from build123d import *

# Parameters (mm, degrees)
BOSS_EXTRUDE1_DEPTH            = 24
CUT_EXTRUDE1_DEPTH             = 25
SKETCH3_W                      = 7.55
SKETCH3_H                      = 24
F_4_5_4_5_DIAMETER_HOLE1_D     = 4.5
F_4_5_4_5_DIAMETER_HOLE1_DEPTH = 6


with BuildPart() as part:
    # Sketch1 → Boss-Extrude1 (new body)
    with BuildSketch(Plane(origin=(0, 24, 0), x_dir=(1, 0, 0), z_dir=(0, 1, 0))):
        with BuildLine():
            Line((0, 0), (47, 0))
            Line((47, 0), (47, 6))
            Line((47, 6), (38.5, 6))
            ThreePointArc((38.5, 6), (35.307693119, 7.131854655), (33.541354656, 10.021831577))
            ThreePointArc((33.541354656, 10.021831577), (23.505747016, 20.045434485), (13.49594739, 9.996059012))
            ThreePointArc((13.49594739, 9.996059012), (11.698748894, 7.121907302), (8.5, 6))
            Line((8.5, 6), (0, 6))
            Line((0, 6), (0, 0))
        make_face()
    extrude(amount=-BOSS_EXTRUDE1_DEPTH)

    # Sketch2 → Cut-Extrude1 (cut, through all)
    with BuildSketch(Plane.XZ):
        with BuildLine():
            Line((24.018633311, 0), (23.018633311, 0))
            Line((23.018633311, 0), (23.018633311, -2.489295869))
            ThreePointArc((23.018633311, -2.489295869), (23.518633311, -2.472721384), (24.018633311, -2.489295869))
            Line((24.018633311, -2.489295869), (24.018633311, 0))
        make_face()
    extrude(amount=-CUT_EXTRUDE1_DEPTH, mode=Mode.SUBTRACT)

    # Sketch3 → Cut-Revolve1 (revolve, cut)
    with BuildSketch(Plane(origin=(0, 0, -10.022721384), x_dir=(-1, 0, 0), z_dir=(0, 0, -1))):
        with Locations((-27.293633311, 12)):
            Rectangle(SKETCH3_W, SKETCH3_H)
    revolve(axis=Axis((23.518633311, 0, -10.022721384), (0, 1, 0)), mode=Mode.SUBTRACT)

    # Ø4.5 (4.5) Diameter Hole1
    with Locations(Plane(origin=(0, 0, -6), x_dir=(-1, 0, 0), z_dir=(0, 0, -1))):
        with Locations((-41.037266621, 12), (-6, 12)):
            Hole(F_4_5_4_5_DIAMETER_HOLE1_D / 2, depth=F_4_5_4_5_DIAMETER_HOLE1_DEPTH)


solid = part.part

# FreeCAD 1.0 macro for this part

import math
import FreeCAD as App
import Part
import Sketcher

V = App.Vector


def add_polygon(sketch, points):
    """Adds a closed chain of lines whose ends are joined by coincident constraints."""
    first, n = sketch.GeometryCount, len(points)
    for a, b in zip(points, points[1:] + points[:1]):
        sketch.addGeometry(Part.LineSegment(App.Vector(*a, 0), App.Vector(*b, 0)), False)
    for i in range(n):
        sketch.addConstraint(Sketcher.Constraint("Coincident", first + i, 2, first + (i + 1) % n, 1))

doc = App.newDocument("Part")
params = doc.addObject("Spreadsheet::Sheet", "Params")
for row, (alias, value) in enumerate([
    ("sketch1_width", "47 mm"),
    ("sketch1_height", "6 mm"),
    ("sketch1_width2", "8.5 mm"),
    ("pad1_length", "24 mm"),
    ("sketch2_width", "1 mm"),
    ("sketch2_radius", "7.55 mm"),
    ("sketch3_height", "24 mm"),
    ("sketch3_width", "7.55 mm"),
    ("groove_angle", "360 deg"),
    ("sketch4_diameter", "4.5 mm"),
    ("hole_diameter", "4.5 mm"),
    ("hole_depth", "6 mm"),
], start=1):
    params.set(f"A{row}", alias)
    params.set(f"B{row}", "=" + value)
    params.setAlias(f"B{row}", alias)

body = doc.addObject("PartDesign::Body", "Body")

# Sketch on XZ plane
sketch1 = body.newObject("Sketcher::SketchObject", "Sketch")
sketch1.AttachmentSupport = (doc.getObject("XZ_Plane"), [""])
sketch1.MapMode = "FlatFace"
sketch1.AttachmentOffset = App.Placement(V(0, 0, -24), App.Rotation())
sketch1.addGeometry([
    Part.LineSegment(V(0, 0, 0), V(47, 0, 0)),  # 0
    Part.LineSegment(V(47, 0, 0), V(47, -6, 0)),  # 1
    Part.LineSegment(V(47, -6, 0), V(38, -6, 0)),  # 2
    Part.ArcOfCircle(Part.Circle(V(38, -11, 0), V(0, 0, 1), 5), math.radians(90), math.radians(168)),  # 3
    Part.ArcOfCircle(Part.Circle(V(24, -10, 0), V(0, 0, 1), 10), math.radians(180), math.radians(360)),  # 4
    Part.ArcOfCircle(Part.Circle(V(9, -11, 0), V(0, 0, 1), 5), math.radians(13), math.radians(90)),  # 5
    Part.LineSegment(V(8, -6, 0), V(0, -6, 0)),  # 6
    Part.LineSegment(V(0, -6, 0), V(0, 0, 0)),  # 7
], False)
sketch1.addConstraint([
    Sketcher.Constraint("Coincident", 0, 2, 1, 1),
    Sketcher.Constraint("Coincident", 1, 2, 2, 1),
    Sketcher.Constraint("Tangent", 2, 2, 3, 1),
    Sketcher.Constraint("Coincident", 3, 2, 4, 2),
    Sketcher.Constraint("Coincident", 4, 1, 5, 1),
    Sketcher.Constraint("Tangent", 5, 2, 6, 1),
    Sketcher.Constraint("Coincident", 6, 2, 7, 1),
    Sketcher.Constraint("Coincident", 7, 2, 0, 1),
    Sketcher.Constraint("Horizontal", 0),
    Sketcher.Constraint("Vertical", 1),
    Sketcher.Constraint("Horizontal", 2),
    Sketcher.Constraint("Horizontal", 6),
    Sketcher.Constraint("Vertical", 7),
    Sketcher.Constraint("Coincident", 7, 2, -1, 1),
    Sketcher.Constraint("Horizontal", 2, 2, 5, 2),
    Sketcher.Constraint("Equal", 2, 6),
    Sketcher.Constraint("DistanceX", 0, 1, 0, 2, 47.0),
    Sketcher.Constraint("DistanceY", 1, 2, 1, 1, 6.0),
    Sketcher.Constraint("DistanceX", 2, 2, 2, 1, 8.5),
    Sketcher.Constraint("Radius", 4, 10.022721),
    Sketcher.Constraint("Radius", 3, 5.067752),
    Sketcher.Constraint("Radius", 5, 5.121043),
    Sketcher.Constraint("DistanceY", 4, 3, -1, 1, 10.022721),
    Sketcher.Constraint("DistanceY", 3, 2, -1, 1, 10.021832),
])
sketch1.setExpression("Constraints[16]", "Params.sketch1_width")
sketch1.setExpression("Constraints[17]", "Params.sketch1_height")
sketch1.setExpression("Constraints[18]", "Params.sketch1_width2")
pad1 = body.newObject("PartDesign::Pad", "Pad")
pad1.Profile = sketch1
pad1.setExpression("Length", "Params.pad1_length")

# Sketch on XZ plane
sketch2 = body.newObject("Sketcher::SketchObject", "Sketch001")
sketch2.AttachmentSupport = (doc.getObject("XZ_Plane"), [""])
sketch2.MapMode = "FlatFace"
sketch2.addGeometry([
    Part.LineSegment(V(24, 0, 0), V(23, 0, 0)),
    Part.LineSegment(V(23, 0, 0), V(23, -2.5, 0)),
    Part.ArcOfCircle(Part.Circle(V(23.5, -10, 0), V(0, 0, 1), 7.5), math.radians(86.2), math.radians(93.8)),
    Part.LineSegment(V(24, -2.5, 0), V(24, 0, 0)),
], False)
sketch2.addConstraint([
    Sketcher.Constraint("Coincident", 0, 2, 1, 1),
    Sketcher.Constraint("Coincident", 1, 2, 2, 2),
    Sketcher.Constraint("Coincident", 2, 1, 3, 1),
    Sketcher.Constraint("Coincident", 3, 2, 0, 1),
    Sketcher.Constraint("Horizontal", 0),
    Sketcher.Constraint("Vertical", 1),
    Sketcher.Constraint("Vertical", 3),
    Sketcher.Constraint("PointOnObject", 0, 2, -1),
    Sketcher.Constraint("Horizontal", 1, 2, 2, 1),
    Sketcher.Constraint("DistanceX", 0, 2, 0, 1, 1.0),
    Sketcher.Constraint("Radius", 2, 7.55),
    Sketcher.Constraint("DistanceY", 1, 2, 1, 1, 2.489296),
    Sketcher.Constraint("DistanceX", -1, 1, 2, 3, 23.518633),
])
sketch2.setExpression("Constraints[9]", "Params.sketch2_width")
sketch2.setExpression("Constraints[10]", "Params.sketch2_radius")
pocket1 = body.newObject("PartDesign::Pocket", "Pocket")
pocket1.Profile = sketch2
pocket1.Type = "ThroughAll"

# Sketch on XY plane
sketch3 = body.newObject("Sketcher::SketchObject", "Sketch002")
sketch3.AttachmentSupport = (doc.getObject("XY_Plane"), [""])
sketch3.MapMode = "FlatFace"
sketch3.AttachmentOffset = App.Placement(V(0, 0, -10.022721), App.Rotation())
add_polygon(sketch3, [(31, 24), (31, 0), (24, 0), (24, 24)])  # lines 0-3
sketch3.addGeometry(Part.LineSegment(V(24, 0, 0), V(24, 24, 0)), True)  # axis
sketch3.addConstraint([
    Sketcher.Constraint("Vertical", 0),
    Sketcher.Constraint("Horizontal", 1),
    Sketcher.Constraint("Vertical", 2),
    Sketcher.Constraint("Horizontal", 3),
    Sketcher.Constraint("Vertical", 4),
    Sketcher.Constraint("Coincident", 4, 1, 1, 2),
    Sketcher.Constraint("PointOnObject", 0, 2, -1),
    Sketcher.Constraint("Horizontal", 3, 2, 4, 2),
    Sketcher.Constraint("DistanceY", 0, 2, 0, 1, 24.0),
    Sketcher.Constraint("DistanceX", 1, 2, 1, 1, 7.55),
    Sketcher.Constraint("DistanceX", -1, 1, 0, 2, 31.068633),
])
sketch3.setExpression("Constraints[12]", "Params.sketch3_height")
sketch3.setExpression("Constraints[13]", "Params.sketch3_width")
groove = body.newObject("PartDesign::Groove", "Groove")
groove.Profile = sketch3
groove.ReferenceAxis = (sketch3, ["Axis0"])
groove.setExpression("Angle", "Params.groove_angle")

# Sketch on XY plane
sketch4 = body.newObject("Sketcher::SketchObject", "Sketch003")
sketch4.AttachmentSupport = (doc.getObject("XY_Plane"), [""])
sketch4.MapMode = "FlatFace"
sketch4.AttachmentOffset = App.Placement(V(0, 0, -6), App.Rotation())
sketch4.addGeometry([
    Part.Circle(V(41, 12, 0), V(0, 0, 1), 2.2),
    Part.Circle(V(6, 12, 0), V(0, 0, 1), 2.2),
], False)
sketch4.addConstraint([
    Sketcher.Constraint("Equal", 0, 1),
    Sketcher.Constraint("Horizontal", 0, 3, 1, 3),
    Sketcher.Constraint("Diameter", 0, 4.5),
    Sketcher.Constraint("DistanceY", -1, 1, 0, 3, 12.0),
    Sketcher.Constraint("DistanceX", -1, 1, 1, 3, 6.0),
    Sketcher.Constraint("DistanceX", -1, 1, 0, 3, 41.037267),
])
sketch4.setExpression("Constraints[2]", "Params.sketch4_diameter")
doc.recompute()
hole = body.newObject("PartDesign::Hole", "Hole")
hole.Profile = sketch4
hole.ThreadType = "None"
hole.setExpression("Diameter", "Params.hole_diameter")
hole.DepthType = "Dimension"
hole.setExpression("Depth", "Params.hole_depth")
hole.DrillPoint = "Flat"
hole.Reversed = True

doc.recompute()
